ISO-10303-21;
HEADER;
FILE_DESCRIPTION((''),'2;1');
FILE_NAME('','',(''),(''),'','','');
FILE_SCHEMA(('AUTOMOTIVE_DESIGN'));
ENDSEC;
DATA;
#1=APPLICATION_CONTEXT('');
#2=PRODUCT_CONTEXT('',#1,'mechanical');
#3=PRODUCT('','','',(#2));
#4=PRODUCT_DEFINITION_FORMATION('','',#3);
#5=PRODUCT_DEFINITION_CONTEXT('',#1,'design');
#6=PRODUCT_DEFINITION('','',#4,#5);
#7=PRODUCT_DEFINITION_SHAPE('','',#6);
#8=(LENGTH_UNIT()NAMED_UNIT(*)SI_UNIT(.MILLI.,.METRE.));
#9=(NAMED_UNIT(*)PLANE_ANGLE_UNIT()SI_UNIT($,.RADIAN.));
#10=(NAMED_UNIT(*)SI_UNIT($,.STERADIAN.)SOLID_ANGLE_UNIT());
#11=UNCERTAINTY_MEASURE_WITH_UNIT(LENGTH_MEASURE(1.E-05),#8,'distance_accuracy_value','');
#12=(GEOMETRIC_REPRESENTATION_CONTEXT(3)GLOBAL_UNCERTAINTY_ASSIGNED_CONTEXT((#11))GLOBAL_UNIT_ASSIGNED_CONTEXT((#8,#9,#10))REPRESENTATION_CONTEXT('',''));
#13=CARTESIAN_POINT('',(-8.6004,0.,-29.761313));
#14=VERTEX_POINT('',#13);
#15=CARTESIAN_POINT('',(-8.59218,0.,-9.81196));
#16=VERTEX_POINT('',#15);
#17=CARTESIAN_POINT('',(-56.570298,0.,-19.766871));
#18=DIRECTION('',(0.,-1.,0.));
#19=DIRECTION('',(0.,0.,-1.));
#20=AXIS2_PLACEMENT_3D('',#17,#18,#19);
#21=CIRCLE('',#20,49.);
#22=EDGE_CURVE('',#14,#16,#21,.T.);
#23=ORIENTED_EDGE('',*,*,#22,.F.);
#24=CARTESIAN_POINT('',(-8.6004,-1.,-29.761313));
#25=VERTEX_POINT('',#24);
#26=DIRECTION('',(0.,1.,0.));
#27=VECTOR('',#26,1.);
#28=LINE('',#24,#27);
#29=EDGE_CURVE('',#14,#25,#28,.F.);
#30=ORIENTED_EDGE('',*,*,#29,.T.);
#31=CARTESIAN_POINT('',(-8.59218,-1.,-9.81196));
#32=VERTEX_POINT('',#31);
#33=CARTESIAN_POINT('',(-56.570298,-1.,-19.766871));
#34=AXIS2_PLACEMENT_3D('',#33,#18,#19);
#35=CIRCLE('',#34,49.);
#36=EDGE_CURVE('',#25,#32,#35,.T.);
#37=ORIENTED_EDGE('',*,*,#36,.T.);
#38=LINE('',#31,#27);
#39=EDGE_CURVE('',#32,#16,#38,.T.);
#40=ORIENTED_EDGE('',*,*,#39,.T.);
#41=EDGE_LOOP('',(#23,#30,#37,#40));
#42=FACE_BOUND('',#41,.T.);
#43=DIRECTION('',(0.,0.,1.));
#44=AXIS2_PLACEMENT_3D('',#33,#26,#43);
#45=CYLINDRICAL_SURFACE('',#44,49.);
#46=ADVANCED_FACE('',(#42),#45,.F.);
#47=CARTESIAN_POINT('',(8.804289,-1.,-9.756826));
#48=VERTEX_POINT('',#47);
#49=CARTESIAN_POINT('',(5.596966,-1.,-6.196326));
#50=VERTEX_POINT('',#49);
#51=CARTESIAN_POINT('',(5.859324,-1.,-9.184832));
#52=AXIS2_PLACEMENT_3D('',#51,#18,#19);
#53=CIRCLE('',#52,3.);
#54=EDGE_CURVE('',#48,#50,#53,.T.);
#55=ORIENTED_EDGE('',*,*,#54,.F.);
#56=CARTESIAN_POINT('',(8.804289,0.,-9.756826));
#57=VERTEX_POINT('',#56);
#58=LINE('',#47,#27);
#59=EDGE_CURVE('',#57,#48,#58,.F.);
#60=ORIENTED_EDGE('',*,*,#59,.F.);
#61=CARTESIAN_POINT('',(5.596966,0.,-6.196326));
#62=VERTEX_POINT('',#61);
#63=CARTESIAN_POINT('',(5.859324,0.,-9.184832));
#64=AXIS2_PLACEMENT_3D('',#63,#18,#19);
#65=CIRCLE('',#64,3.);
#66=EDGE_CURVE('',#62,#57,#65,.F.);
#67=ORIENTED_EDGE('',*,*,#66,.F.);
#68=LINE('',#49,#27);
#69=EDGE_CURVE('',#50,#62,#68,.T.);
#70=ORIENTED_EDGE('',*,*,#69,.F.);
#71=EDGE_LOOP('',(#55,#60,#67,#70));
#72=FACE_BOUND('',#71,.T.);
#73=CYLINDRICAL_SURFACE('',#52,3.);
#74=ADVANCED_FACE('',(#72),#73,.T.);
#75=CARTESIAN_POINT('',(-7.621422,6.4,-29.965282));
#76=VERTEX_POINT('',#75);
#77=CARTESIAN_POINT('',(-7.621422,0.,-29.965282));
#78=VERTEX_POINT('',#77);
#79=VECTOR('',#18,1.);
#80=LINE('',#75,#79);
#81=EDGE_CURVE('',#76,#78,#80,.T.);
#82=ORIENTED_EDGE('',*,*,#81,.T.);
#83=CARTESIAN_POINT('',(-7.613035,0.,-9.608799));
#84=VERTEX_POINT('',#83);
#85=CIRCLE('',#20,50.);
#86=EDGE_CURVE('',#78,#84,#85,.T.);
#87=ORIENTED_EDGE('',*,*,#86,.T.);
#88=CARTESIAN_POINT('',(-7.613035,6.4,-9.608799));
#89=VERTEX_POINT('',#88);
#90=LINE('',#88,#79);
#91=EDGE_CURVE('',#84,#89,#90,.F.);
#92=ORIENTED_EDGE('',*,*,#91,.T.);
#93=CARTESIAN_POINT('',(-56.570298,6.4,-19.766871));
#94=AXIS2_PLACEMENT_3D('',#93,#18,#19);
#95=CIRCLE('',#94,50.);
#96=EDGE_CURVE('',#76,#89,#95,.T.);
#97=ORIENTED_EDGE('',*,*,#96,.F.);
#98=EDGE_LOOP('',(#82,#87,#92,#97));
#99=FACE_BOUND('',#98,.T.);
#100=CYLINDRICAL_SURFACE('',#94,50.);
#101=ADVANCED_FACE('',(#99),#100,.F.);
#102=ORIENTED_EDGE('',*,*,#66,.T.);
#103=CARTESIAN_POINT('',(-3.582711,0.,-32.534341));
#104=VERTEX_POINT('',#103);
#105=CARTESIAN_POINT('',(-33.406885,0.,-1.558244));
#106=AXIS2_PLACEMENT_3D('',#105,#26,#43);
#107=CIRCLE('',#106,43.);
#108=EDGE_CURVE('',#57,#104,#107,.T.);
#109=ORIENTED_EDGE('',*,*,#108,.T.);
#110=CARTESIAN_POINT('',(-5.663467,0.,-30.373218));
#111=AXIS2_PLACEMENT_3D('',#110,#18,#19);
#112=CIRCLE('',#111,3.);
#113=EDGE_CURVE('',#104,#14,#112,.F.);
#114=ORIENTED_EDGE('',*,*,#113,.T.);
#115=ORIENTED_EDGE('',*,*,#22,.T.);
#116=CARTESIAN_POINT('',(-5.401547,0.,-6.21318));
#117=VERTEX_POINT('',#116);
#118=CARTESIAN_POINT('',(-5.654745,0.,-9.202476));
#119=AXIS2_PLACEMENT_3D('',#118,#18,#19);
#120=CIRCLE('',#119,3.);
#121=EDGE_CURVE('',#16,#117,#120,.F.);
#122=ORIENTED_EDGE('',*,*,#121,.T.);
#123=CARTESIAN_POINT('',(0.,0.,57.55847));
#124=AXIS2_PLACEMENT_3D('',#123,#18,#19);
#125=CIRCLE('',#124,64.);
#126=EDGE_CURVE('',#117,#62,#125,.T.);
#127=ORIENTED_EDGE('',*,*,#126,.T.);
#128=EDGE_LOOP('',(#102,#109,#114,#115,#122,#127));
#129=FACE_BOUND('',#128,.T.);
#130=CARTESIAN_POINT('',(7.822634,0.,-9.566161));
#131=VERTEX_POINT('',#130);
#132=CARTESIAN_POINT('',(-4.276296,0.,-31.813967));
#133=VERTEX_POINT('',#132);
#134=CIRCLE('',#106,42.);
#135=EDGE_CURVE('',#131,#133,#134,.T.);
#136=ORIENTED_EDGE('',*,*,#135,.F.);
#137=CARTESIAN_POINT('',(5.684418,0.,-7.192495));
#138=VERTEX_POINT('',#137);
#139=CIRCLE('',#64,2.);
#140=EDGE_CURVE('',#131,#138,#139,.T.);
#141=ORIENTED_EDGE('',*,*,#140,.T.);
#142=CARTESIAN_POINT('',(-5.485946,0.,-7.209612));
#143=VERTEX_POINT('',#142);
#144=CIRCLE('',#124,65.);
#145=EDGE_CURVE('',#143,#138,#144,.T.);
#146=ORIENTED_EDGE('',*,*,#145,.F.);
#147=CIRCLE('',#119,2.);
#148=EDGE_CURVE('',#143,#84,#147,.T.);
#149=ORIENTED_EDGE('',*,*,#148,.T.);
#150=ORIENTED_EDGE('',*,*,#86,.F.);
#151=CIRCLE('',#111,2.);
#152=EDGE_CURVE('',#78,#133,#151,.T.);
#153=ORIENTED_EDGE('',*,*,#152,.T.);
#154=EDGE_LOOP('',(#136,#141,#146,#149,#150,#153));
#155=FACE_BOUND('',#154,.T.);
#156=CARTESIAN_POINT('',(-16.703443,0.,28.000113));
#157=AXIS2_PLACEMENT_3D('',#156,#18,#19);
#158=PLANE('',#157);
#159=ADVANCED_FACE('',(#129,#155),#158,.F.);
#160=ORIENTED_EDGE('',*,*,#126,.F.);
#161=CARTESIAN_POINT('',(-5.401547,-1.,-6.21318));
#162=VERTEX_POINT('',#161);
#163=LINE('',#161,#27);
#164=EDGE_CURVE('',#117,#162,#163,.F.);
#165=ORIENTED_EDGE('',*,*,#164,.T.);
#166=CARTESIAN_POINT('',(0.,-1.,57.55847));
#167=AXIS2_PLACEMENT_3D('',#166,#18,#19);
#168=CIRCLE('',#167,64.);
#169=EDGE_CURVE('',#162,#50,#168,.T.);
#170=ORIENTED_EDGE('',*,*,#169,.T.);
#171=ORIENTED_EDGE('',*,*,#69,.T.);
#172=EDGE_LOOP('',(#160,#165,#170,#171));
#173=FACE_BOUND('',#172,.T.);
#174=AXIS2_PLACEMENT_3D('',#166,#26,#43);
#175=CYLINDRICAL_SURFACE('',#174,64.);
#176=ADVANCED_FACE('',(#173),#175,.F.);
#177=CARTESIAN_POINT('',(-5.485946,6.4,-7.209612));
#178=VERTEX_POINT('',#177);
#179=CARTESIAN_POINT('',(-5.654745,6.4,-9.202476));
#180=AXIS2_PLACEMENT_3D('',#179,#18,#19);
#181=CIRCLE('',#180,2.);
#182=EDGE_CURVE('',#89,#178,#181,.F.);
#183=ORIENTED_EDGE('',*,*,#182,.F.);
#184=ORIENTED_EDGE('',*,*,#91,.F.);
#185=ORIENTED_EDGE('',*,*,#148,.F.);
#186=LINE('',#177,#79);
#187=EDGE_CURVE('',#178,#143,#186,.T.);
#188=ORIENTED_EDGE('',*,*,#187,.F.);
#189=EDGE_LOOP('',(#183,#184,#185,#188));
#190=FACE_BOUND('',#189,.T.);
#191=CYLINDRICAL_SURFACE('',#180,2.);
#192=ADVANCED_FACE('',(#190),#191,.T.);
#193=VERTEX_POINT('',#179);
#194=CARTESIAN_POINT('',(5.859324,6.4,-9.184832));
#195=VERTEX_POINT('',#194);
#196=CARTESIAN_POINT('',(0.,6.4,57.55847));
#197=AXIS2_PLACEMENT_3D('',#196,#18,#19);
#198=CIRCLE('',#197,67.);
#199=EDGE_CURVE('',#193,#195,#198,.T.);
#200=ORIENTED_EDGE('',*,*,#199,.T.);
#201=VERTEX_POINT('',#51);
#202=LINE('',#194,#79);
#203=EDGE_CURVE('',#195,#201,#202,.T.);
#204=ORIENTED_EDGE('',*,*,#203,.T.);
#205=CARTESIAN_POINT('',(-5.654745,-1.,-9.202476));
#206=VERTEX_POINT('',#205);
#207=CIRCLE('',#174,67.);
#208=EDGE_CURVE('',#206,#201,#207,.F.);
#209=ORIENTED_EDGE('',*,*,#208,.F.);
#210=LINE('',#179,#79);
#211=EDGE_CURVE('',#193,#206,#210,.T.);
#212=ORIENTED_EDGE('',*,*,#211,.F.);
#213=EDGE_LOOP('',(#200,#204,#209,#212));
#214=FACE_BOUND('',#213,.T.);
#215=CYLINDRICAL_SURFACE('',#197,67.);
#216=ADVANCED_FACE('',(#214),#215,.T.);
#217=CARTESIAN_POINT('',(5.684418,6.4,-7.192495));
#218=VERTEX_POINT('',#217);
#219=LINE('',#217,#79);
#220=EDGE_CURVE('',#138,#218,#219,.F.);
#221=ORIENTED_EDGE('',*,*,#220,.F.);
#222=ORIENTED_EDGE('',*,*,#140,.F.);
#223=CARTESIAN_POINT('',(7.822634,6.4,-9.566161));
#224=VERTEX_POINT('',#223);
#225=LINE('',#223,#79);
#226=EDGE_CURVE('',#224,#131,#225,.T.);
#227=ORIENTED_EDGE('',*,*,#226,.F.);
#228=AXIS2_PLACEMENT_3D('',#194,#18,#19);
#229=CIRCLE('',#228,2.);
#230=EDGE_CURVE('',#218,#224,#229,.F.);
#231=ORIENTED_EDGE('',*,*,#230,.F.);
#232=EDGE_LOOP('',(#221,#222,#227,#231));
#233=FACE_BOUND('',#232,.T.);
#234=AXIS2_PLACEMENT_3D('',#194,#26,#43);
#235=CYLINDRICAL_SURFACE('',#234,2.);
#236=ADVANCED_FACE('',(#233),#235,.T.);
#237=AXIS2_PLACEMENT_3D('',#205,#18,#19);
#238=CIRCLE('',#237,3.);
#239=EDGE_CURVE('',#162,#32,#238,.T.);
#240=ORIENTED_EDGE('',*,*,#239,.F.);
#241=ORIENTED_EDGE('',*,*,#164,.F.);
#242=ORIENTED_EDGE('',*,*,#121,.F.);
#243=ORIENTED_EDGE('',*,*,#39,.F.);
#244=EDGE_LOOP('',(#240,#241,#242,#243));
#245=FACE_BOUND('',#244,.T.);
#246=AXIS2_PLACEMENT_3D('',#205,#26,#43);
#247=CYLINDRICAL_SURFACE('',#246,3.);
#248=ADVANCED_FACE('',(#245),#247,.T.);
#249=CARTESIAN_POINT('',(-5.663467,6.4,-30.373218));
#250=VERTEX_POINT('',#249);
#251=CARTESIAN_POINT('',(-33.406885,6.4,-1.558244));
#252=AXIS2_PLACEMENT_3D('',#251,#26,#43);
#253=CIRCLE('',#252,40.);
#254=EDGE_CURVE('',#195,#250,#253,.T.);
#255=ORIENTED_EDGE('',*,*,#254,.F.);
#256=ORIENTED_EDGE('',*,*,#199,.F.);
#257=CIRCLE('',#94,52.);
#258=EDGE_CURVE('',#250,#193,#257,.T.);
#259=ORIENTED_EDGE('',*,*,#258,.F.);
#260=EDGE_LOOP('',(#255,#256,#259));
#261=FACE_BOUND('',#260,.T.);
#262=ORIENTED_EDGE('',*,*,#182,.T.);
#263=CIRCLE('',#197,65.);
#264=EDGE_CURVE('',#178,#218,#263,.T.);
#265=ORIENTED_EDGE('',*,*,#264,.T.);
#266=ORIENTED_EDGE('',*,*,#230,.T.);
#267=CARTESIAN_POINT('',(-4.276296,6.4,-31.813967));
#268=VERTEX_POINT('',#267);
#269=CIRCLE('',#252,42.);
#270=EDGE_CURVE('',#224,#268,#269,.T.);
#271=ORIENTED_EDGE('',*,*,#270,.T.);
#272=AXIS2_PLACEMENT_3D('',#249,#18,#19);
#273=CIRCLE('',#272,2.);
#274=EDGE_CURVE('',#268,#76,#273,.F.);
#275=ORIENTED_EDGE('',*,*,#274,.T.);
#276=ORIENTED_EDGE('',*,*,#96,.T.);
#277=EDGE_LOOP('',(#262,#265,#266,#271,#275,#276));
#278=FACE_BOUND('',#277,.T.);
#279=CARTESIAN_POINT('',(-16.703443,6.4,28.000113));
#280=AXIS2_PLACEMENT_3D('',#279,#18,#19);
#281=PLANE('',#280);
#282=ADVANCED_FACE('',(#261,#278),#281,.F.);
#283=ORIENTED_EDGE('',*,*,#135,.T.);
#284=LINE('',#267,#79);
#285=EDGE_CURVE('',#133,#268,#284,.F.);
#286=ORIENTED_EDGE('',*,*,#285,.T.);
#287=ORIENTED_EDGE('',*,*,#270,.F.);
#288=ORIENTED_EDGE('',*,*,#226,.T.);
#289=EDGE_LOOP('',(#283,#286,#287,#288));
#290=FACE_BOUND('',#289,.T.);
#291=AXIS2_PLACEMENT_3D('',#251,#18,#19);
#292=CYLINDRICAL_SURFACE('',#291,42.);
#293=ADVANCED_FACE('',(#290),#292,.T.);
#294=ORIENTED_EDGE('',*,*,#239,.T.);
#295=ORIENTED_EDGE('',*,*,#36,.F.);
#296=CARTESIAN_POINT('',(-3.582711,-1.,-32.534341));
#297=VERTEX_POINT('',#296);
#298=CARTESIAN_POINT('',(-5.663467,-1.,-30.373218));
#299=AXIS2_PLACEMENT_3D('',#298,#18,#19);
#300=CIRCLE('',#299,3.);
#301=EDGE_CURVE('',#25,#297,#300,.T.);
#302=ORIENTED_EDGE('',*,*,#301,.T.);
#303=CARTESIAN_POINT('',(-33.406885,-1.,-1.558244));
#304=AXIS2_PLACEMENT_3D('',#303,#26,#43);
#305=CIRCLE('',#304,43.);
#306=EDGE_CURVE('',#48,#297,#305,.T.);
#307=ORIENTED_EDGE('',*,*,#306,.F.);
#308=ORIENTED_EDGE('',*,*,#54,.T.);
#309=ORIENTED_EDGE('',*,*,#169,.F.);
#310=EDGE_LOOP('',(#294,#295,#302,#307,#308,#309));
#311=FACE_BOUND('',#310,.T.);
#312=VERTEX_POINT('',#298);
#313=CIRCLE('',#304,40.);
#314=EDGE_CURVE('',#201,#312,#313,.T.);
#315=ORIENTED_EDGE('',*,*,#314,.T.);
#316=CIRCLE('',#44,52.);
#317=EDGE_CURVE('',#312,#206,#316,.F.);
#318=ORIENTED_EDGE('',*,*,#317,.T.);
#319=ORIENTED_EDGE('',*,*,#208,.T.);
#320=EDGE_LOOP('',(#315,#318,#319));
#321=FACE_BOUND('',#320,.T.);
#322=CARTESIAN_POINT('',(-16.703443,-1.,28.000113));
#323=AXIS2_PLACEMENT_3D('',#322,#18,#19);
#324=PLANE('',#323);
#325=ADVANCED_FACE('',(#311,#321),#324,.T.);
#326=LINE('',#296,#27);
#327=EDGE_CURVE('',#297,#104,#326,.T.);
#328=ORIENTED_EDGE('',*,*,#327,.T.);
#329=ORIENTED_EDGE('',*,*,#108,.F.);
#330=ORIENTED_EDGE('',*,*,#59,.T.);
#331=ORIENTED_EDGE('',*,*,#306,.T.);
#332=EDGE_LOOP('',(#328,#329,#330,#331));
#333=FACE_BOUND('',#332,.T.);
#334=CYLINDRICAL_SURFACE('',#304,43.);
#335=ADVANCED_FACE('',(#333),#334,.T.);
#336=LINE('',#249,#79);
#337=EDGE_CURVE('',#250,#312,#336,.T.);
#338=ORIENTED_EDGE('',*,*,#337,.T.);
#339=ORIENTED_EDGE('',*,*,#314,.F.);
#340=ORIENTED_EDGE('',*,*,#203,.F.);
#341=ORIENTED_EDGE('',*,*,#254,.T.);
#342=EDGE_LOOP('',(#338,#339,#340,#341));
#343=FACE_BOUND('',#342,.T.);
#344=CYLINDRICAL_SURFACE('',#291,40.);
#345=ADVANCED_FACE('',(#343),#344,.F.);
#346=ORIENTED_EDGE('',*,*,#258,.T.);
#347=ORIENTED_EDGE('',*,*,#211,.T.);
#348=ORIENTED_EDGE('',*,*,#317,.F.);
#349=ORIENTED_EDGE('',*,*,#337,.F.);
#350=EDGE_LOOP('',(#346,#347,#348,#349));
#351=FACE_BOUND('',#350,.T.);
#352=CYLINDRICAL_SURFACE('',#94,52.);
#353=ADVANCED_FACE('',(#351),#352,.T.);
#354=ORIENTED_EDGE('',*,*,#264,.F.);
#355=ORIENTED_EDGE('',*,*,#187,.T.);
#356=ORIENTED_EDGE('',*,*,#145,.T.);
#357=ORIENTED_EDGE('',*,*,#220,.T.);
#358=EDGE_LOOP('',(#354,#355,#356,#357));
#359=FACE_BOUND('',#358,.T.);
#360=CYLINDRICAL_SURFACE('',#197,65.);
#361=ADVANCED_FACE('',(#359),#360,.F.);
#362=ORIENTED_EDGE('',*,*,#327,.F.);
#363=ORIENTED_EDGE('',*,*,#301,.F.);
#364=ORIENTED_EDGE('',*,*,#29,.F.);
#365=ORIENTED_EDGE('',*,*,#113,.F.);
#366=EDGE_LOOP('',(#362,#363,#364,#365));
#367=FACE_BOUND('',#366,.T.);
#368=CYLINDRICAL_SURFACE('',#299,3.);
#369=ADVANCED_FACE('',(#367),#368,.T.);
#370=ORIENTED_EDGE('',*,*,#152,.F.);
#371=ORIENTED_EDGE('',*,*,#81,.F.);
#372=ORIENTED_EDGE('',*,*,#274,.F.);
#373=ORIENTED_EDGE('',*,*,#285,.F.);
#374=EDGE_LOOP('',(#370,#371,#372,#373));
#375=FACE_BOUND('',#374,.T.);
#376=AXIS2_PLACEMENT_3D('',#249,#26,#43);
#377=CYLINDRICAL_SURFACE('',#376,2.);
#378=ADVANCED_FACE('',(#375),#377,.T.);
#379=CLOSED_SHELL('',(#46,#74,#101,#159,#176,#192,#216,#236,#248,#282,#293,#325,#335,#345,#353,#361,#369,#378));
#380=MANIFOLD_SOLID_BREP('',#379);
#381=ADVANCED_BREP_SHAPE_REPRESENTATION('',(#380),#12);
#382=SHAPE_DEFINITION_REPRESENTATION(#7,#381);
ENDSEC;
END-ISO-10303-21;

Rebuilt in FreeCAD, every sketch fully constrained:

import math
import FreeCAD as App
import Part
import Sketcher

V = App.Vector
Q = App.Units.Quantity


def edges_at(feature, points):
    """Names of the edges that pass closest to the given points."""
    edges = feature.Shape.Edges
    near = lambda p: min(range(len(edges)), key=lambda i: edges[i].distToShape(Part.Vertex(*p))[0])
    return sorted({f"Edge{near(p) + 1}" for p in points})

doc = App.newDocument("Part")
body = doc.addObject("PartDesign::Body", "Body")

# Sketch on XZ plane
sketch1 = doc.addObject("Sketcher::SketchObject", "Sketch")
body.addObject(sketch1)
sketch1.AttachmentSupport = (doc.XZ_Plane, [""])
sketch1.MapMode = "FlatFace"
sketch1.addGeometry(Part.ArcOfCircle(Part.Circle(V(0, 57.55847, 0), V(0, 0, 1), 65), math.radians(-97.291825), math.radians(-82.708175)), False)
sketch1.addGeometry(Part.ArcOfCircle(Part.Circle(V(-33.406885, -1.558244, 0), V(0, 0, 1), 42), math.radians(-54.888887), math.radians(-7.328731)), False)
sketch1.addGeometry(Part.ArcOfCircle(Part.Circle(V(-56.570298, -19.766871, 0), V(0, 0, 1), 50), math.radians(-18.843209), math.radians(14.893341)), False)
sketch1.addGeometry(Part.ArcOfCircle(Part.Circle(V(-56.570298, -19.766871, 0), V(0, 0, 1), 52), math.radians(-11.769106), math.radians(11.721893)), False)
sketch1.addGeometry(Part.ArcOfCircle(Part.Circle(V(-33.406885, -1.558244, 0), V(0, 0, 1), 40), math.radians(-46.085397), math.radians(-10.991578)), False)
sketch1.addGeometry(Part.ArcOfCircle(Part.Circle(V(0, 57.55847, 0), V(0, 0, 1), 67), math.radians(-94.841476), math.radians(-84.982927)), False)
sketch1.addConstraint(Sketcher.Constraint("Coincident", 0, 2, 1, 2))
sketch1.addConstraint(Sketcher.Constraint("Coincident", 1, 1, 2, 1))
sketch1.addConstraint(Sketcher.Constraint("Coincident", 2, 2, 0, 1))
sketch1.addConstraint(Sketcher.Constraint("Coincident", 3, 1, 4, 1))
sketch1.addConstraint(Sketcher.Constraint("Coincident", 4, 2, 5, 2))
sketch1.addConstraint(Sketcher.Constraint("Coincident", 5, 1, 3, 2))
sketch1.addConstraint(Sketcher.Constraint("Coincident", 3, 3, 2, 3))
sketch1.addConstraint(Sketcher.Constraint("Coincident", 4, 3, 1, 3))
sketch1.addConstraint(Sketcher.Constraint("Coincident", 5, 3, 0, 3))
sketch1.addConstraint(Sketcher.Constraint("Symmetric", 0, 2, 2, 2, -2))
sketch1.addConstraint(Sketcher.Constraint("Radius", 0, Q("65 mm")))
sketch1.addConstraint(Sketcher.Constraint("Radius", 1, Q("42 mm")))
sketch1.addConstraint(Sketcher.Constraint("Radius", 2, Q("50 mm")))
sketch1.addConstraint(Sketcher.Constraint("Radius", 3, Q("52 mm")))
sketch1.addConstraint(Sketcher.Constraint("Radius", 4, Q("40 mm")))
sketch1.addConstraint(Sketcher.Constraint("Radius", 5, Q("67 mm")))
sketch1.addConstraint(Sketcher.Constraint("DistanceY", 1, 1, 0, 2, Q("29 mm")))
sketch1.addConstraint(Sketcher.Constraint("DistanceX", 1, 1, 2, 2, Q("1 mm")))
sketch1.addConstraint(Sketcher.Constraint("DistanceX", 1, 1, 0, 2, Q("17.5 mm")))
sketch1.addConstraint(Sketcher.Constraint("DistanceY", -1, 1, 0, 3, Q("57.55847 mm")))
pad1 = doc.addObject("PartDesign::Pad", "Pad")
body.addObject(pad1)
pad1.Profile = sketch1
pad1.Length = 6.4
pad1.Reversed = True

# Sketch on XZ plane
sketch2 = doc.addObject("Sketcher::SketchObject", "Sketch001")
body.addObject(sketch2)
sketch2.AttachmentSupport = (doc.XZ_Plane, [""])
sketch2.MapMode = "FlatFace"
sketch2.addGeometry(Part.ArcOfCircle(Part.Circle(V(-56.570298, -19.766871, 0), V(0, 0, 1), 49), math.radians(-22.368913), math.radians(16.667251)), False)
sketch2.addGeometry(Part.ArcOfCircle(Part.Circle(V(0, 57.55847, 0), V(0, 0, 1), 64), math.radians(-98.653146), math.radians(-81.564631)), False)
sketch2.addGeometry(Part.ArcOfCircle(Part.Circle(V(-33.406885, -1.558244, 0), V(0, 0, 1), 43), math.radians(-58.9956), math.radians(-5.593129)), False)
sketch2.addConstraint(Sketcher.Constraint("Coincident", 0, 2, 1, 1))
sketch2.addConstraint(Sketcher.Constraint("Coincident", 1, 2, 2, 2))
sketch2.addConstraint(Sketcher.Constraint("Coincident", 2, 1, 0, 1))
sketch2.addConstraint(Sketcher.Constraint("PointOnObject", 1, 3, -2))
sketch2.addConstraint(Sketcher.Constraint("Radius", 0, Q("49 mm")))
sketch2.addConstraint(Sketcher.Constraint("Radius", 1, Q("64 mm")))
sketch2.addConstraint(Sketcher.Constraint("Radius", 2, Q("43 mm")))
sketch2.addConstraint(Sketcher.Constraint("DistanceY", 0, 3, -1, 1, Q("19.766871 mm")))
sketch2.addConstraint(Sketcher.Constraint("DistanceY", -1, 1, 1, 3, Q("57.55847 mm")))
sketch2.addConstraint(Sketcher.Constraint("DistanceX", 2, 3, 0, 2, Q("23.77793 mm")))
sketch2.addConstraint(Sketcher.Constraint("DistanceY", 0, 2, 2, 3, Q("4.154791 mm")))
sketch2.addConstraint(Sketcher.Constraint("DistanceY", 1, 2, 0, 2, Q("0.036142 mm")))
pad2 = doc.addObject("PartDesign::Pad", "Pad001")
body.addObject(pad2)
pad2.Profile = sketch2
pad2.Length = 1
doc.recompute()

fillet = doc.addObject("PartDesign::Fillet", "Fillet")
body.addObject(fillet)
fillet.Base = (pad2, edges_at(pad2, [(-8.25, 3.2, -6.916), (-9.25, 3.2, -35.916), (8.25, 3.2, -6.916)]))
fillet.Radius = 2
doc.recompute()

fillet2 = doc.addObject("PartDesign::Fillet", "Fillet001")
body.addObject(fillet2)
fillet2.Base = (fillet, edges_at(fillet, [(9.388, -0.5, -5.749), (-9.629, -0.5, -5.713), (-11.257, -0.5, -38.415)]))
fillet2.Radius = 3

# Sketch on XZ plane
sketch3 = doc.addObject("Sketcher::SketchObject", "Sketch002")
body.addObject(sketch3)
sketch3.AttachmentSupport = (doc.XZ_Plane, [""])
sketch3.MapMode = "FlatFace"
sketch3.addGeometry(Part.ArcOfCircle(Part.Circle(V(0, 57.55847, 0), V(0, 0, 1), 67), math.radians(-94.841476), math.radians(-84.982927)), False)
sketch3.addGeometry(Part.ArcOfCircle(Part.Circle(V(-33.406885, -1.558244, 0), V(0, 0, 1), 40), math.radians(-46.085397), math.radians(-10.991578)), False)
sketch3.addGeometry(Part.ArcOfCircle(Part.Circle(V(-56.570298, -19.766871, 0), V(0, 0, 1), 52), math.radians(-11.769106), math.radians(11.721893)), False)
sketch3.addConstraint(Sketcher.Constraint("Coincident", 0, 2, 1, 2))
sketch3.addConstraint(Sketcher.Constraint("Coincident", 1, 1, 2, 1))
sketch3.addConstraint(Sketcher.Constraint("Coincident", 2, 2, 0, 1))
sketch3.addConstraint(Sketcher.Constraint("PointOnObject", 0, 3, -2))
sketch3.addConstraint(Sketcher.Constraint("Radius", 0, Q("67 mm")))
sketch3.addConstraint(Sketcher.Constraint("Radius", 1, Q("40 mm")))
sketch3.addConstraint(Sketcher.Constraint("Radius", 2, Q("52 mm")))
sketch3.addConstraint(Sketcher.Constraint("DistanceY", 0, 2, 0, 3, Q("66.743302 mm")))
sketch3.addConstraint(Sketcher.Constraint("DistanceY", -1, 1, 0, 3, Q("57.55847 mm")))
sketch3.addConstraint(Sketcher.Constraint("DistanceY", 2, 3, -1, 1, Q("19.766871 mm")))
sketch3.addConstraint(Sketcher.Constraint("DistanceY", 1, 1, -1, 1, Q("30.373218 mm")))
sketch3.addConstraint(Sketcher.Constraint("DistanceX", 1, 3, 0, 2, Q("39.266209 mm")))
pocket1 = doc.addObject("PartDesign::Pocket", "Pocket")
body.addObject(pocket1)
pocket1.Profile = sketch3
pocket1.Type = "ThroughAll"
pocket1.Reversed = True

doc.recompute()
